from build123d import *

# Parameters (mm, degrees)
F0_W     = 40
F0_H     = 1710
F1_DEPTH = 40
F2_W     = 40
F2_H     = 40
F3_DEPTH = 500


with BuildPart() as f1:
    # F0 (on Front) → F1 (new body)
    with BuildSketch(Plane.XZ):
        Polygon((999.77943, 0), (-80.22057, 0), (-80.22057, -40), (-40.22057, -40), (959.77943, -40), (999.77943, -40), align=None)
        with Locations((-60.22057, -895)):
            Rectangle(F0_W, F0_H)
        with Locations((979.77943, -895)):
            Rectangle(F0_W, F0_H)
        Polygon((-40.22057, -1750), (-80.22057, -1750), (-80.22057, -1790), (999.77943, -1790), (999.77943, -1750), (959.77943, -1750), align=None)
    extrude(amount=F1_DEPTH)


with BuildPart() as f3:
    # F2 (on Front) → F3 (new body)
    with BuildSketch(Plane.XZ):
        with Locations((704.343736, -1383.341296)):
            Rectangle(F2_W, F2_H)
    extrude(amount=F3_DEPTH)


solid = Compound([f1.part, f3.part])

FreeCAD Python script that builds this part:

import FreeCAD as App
import Part
import Sketcher

V = App.Vector
Q = App.Units.Quantity


def add_polygon(sketch, points):
    """Adds a closed chain of lines whose ends are joined by coincident constraints."""
    first, n = sketch.GeometryCount, len(points)
    for a, b in zip(points, points[1:] + points[:1]):
        sketch.addGeometry(Part.LineSegment(App.Vector(*a, 0), App.Vector(*b, 0)), False)
    for i in range(n):
        sketch.addConstraint(Sketcher.Constraint("Coincident", first + i, 2, first + (i + 1) % n, 1))

doc = App.newDocument("Part")
params = doc.addObject("Spreadsheet::Sheet", "Params")
for row, (alias, value) in enumerate([
    ("sketch1_width", "1080 mm"),
    ("sketch1_width2", "1000 mm"),
    ("sketch1_height", "1790 mm"),
    ("sketch1_height2", "1710 mm"),
    ("pad1_length", "40 mm"),
    ("sketch2_width", "40 mm"),
    ("pad2_length", "500 mm"),
], start=1):
    params.set(f"A{row}", alias)
    params.set(f"B{row}", "=" + value)
    params.setAlias(f"B{row}", alias)

body = doc.addObject("PartDesign::Body", "Body")

sketch1 = body.newObject("Sketcher::SketchObject", "Sketch")
sketch1.AttachmentSupport = (doc.getObject("XZ_Plane"), [""])
sketch1.MapMode = "FlatFace"
add_polygon(sketch1, [(1000, 0), (-80, 0), (-80, -1790), (1000, -1790)])
add_polygon(sketch1, [(-40, -1750), (-40, -40), (960, -40), (960, -1750)])
sketch1.addConstraint([
    Sketcher.Constraint("Horizontal", 0),
    Sketcher.Constraint("Vertical", 1),
    Sketcher.Constraint("Horizontal", 2),
    Sketcher.Constraint("Vertical", 3),
    Sketcher.Constraint("Vertical", 4),
    Sketcher.Constraint("Horizontal", 5),
    Sketcher.Constraint("Vertical", 6),
    Sketcher.Constraint("Horizontal", 7),
    Sketcher.Constraint("PointOnObject", 0, 2, -1),
    Sketcher.Constraint("DistanceX", 0, 2, 0, 1, Q("1080 mm")),
    Sketcher.Constraint("DistanceX", 5, 1, 5, 2, Q("1000 mm")),
    Sketcher.Constraint("DistanceY", 1, 2, 1, 1, Q("1790 mm")),
    Sketcher.Constraint("DistanceY", 4, 1, 4, 2, Q("1710 mm")),
    Sketcher.Constraint("DistanceY", 4, 2, -1, 1, Q("40 mm")),
    Sketcher.Constraint("DistanceX", 0, 2, 4, 2, Q("40 mm")),
    Sketcher.Constraint("DistanceX", 0, 2, -1, 1, Q("80.22057 mm")),
])
sketch1.setExpression("Constraints[17]", "Params.sketch1_width")
sketch1.setExpression("Constraints[18]", "Params.sketch1_width2")
sketch1.setExpression("Constraints[19]", "Params.sketch1_height")
sketch1.setExpression("Constraints[20]", "Params.sketch1_height2")
pad1 = body.newObject("PartDesign::Pad", "Pad")
pad1.Profile = sketch1
pad1.setExpression("Length", "Params.pad1_length")
body2 = doc.addObject("PartDesign::Body", "Body001")

sketch2 = body2.newObject("Sketcher::SketchObject", "Sketch001")
sketch2.AttachmentSupport = (doc.getObject("XZ_Plane001"), [""])
sketch2.MapMode = "FlatFace"
add_polygon(sketch2, [(684, -1363), (684, -1403), (724, -1403), (724, -1363)])
sketch2.addConstraint([
    Sketcher.Constraint("Vertical", 0),
    Sketcher.Constraint("Horizontal", 1),
    Sketcher.Constraint("Vertical", 2),
    Sketcher.Constraint("Horizontal", 3),
    Sketcher.Constraint("Equal", 3, 0),
    Sketcher.Constraint("DistanceX", 1, 1, 1, 2, Q("40 mm")),
    Sketcher.Constraint("DistanceX", -1, 1, 0, 2, Q("684.343736 mm")),
    Sketcher.Constraint("DistanceY", 0, 2, -1, 1, Q("1403.341296 mm")),
])
sketch2.setExpression("Constraints[9]", "Params.sketch2_width")
pad2 = body2.newObject("PartDesign::Pad", "Pad001")
pad2.Profile = sketch2
pad2.setExpression("Length", "Params.pad2_length")

doc.recompute()
